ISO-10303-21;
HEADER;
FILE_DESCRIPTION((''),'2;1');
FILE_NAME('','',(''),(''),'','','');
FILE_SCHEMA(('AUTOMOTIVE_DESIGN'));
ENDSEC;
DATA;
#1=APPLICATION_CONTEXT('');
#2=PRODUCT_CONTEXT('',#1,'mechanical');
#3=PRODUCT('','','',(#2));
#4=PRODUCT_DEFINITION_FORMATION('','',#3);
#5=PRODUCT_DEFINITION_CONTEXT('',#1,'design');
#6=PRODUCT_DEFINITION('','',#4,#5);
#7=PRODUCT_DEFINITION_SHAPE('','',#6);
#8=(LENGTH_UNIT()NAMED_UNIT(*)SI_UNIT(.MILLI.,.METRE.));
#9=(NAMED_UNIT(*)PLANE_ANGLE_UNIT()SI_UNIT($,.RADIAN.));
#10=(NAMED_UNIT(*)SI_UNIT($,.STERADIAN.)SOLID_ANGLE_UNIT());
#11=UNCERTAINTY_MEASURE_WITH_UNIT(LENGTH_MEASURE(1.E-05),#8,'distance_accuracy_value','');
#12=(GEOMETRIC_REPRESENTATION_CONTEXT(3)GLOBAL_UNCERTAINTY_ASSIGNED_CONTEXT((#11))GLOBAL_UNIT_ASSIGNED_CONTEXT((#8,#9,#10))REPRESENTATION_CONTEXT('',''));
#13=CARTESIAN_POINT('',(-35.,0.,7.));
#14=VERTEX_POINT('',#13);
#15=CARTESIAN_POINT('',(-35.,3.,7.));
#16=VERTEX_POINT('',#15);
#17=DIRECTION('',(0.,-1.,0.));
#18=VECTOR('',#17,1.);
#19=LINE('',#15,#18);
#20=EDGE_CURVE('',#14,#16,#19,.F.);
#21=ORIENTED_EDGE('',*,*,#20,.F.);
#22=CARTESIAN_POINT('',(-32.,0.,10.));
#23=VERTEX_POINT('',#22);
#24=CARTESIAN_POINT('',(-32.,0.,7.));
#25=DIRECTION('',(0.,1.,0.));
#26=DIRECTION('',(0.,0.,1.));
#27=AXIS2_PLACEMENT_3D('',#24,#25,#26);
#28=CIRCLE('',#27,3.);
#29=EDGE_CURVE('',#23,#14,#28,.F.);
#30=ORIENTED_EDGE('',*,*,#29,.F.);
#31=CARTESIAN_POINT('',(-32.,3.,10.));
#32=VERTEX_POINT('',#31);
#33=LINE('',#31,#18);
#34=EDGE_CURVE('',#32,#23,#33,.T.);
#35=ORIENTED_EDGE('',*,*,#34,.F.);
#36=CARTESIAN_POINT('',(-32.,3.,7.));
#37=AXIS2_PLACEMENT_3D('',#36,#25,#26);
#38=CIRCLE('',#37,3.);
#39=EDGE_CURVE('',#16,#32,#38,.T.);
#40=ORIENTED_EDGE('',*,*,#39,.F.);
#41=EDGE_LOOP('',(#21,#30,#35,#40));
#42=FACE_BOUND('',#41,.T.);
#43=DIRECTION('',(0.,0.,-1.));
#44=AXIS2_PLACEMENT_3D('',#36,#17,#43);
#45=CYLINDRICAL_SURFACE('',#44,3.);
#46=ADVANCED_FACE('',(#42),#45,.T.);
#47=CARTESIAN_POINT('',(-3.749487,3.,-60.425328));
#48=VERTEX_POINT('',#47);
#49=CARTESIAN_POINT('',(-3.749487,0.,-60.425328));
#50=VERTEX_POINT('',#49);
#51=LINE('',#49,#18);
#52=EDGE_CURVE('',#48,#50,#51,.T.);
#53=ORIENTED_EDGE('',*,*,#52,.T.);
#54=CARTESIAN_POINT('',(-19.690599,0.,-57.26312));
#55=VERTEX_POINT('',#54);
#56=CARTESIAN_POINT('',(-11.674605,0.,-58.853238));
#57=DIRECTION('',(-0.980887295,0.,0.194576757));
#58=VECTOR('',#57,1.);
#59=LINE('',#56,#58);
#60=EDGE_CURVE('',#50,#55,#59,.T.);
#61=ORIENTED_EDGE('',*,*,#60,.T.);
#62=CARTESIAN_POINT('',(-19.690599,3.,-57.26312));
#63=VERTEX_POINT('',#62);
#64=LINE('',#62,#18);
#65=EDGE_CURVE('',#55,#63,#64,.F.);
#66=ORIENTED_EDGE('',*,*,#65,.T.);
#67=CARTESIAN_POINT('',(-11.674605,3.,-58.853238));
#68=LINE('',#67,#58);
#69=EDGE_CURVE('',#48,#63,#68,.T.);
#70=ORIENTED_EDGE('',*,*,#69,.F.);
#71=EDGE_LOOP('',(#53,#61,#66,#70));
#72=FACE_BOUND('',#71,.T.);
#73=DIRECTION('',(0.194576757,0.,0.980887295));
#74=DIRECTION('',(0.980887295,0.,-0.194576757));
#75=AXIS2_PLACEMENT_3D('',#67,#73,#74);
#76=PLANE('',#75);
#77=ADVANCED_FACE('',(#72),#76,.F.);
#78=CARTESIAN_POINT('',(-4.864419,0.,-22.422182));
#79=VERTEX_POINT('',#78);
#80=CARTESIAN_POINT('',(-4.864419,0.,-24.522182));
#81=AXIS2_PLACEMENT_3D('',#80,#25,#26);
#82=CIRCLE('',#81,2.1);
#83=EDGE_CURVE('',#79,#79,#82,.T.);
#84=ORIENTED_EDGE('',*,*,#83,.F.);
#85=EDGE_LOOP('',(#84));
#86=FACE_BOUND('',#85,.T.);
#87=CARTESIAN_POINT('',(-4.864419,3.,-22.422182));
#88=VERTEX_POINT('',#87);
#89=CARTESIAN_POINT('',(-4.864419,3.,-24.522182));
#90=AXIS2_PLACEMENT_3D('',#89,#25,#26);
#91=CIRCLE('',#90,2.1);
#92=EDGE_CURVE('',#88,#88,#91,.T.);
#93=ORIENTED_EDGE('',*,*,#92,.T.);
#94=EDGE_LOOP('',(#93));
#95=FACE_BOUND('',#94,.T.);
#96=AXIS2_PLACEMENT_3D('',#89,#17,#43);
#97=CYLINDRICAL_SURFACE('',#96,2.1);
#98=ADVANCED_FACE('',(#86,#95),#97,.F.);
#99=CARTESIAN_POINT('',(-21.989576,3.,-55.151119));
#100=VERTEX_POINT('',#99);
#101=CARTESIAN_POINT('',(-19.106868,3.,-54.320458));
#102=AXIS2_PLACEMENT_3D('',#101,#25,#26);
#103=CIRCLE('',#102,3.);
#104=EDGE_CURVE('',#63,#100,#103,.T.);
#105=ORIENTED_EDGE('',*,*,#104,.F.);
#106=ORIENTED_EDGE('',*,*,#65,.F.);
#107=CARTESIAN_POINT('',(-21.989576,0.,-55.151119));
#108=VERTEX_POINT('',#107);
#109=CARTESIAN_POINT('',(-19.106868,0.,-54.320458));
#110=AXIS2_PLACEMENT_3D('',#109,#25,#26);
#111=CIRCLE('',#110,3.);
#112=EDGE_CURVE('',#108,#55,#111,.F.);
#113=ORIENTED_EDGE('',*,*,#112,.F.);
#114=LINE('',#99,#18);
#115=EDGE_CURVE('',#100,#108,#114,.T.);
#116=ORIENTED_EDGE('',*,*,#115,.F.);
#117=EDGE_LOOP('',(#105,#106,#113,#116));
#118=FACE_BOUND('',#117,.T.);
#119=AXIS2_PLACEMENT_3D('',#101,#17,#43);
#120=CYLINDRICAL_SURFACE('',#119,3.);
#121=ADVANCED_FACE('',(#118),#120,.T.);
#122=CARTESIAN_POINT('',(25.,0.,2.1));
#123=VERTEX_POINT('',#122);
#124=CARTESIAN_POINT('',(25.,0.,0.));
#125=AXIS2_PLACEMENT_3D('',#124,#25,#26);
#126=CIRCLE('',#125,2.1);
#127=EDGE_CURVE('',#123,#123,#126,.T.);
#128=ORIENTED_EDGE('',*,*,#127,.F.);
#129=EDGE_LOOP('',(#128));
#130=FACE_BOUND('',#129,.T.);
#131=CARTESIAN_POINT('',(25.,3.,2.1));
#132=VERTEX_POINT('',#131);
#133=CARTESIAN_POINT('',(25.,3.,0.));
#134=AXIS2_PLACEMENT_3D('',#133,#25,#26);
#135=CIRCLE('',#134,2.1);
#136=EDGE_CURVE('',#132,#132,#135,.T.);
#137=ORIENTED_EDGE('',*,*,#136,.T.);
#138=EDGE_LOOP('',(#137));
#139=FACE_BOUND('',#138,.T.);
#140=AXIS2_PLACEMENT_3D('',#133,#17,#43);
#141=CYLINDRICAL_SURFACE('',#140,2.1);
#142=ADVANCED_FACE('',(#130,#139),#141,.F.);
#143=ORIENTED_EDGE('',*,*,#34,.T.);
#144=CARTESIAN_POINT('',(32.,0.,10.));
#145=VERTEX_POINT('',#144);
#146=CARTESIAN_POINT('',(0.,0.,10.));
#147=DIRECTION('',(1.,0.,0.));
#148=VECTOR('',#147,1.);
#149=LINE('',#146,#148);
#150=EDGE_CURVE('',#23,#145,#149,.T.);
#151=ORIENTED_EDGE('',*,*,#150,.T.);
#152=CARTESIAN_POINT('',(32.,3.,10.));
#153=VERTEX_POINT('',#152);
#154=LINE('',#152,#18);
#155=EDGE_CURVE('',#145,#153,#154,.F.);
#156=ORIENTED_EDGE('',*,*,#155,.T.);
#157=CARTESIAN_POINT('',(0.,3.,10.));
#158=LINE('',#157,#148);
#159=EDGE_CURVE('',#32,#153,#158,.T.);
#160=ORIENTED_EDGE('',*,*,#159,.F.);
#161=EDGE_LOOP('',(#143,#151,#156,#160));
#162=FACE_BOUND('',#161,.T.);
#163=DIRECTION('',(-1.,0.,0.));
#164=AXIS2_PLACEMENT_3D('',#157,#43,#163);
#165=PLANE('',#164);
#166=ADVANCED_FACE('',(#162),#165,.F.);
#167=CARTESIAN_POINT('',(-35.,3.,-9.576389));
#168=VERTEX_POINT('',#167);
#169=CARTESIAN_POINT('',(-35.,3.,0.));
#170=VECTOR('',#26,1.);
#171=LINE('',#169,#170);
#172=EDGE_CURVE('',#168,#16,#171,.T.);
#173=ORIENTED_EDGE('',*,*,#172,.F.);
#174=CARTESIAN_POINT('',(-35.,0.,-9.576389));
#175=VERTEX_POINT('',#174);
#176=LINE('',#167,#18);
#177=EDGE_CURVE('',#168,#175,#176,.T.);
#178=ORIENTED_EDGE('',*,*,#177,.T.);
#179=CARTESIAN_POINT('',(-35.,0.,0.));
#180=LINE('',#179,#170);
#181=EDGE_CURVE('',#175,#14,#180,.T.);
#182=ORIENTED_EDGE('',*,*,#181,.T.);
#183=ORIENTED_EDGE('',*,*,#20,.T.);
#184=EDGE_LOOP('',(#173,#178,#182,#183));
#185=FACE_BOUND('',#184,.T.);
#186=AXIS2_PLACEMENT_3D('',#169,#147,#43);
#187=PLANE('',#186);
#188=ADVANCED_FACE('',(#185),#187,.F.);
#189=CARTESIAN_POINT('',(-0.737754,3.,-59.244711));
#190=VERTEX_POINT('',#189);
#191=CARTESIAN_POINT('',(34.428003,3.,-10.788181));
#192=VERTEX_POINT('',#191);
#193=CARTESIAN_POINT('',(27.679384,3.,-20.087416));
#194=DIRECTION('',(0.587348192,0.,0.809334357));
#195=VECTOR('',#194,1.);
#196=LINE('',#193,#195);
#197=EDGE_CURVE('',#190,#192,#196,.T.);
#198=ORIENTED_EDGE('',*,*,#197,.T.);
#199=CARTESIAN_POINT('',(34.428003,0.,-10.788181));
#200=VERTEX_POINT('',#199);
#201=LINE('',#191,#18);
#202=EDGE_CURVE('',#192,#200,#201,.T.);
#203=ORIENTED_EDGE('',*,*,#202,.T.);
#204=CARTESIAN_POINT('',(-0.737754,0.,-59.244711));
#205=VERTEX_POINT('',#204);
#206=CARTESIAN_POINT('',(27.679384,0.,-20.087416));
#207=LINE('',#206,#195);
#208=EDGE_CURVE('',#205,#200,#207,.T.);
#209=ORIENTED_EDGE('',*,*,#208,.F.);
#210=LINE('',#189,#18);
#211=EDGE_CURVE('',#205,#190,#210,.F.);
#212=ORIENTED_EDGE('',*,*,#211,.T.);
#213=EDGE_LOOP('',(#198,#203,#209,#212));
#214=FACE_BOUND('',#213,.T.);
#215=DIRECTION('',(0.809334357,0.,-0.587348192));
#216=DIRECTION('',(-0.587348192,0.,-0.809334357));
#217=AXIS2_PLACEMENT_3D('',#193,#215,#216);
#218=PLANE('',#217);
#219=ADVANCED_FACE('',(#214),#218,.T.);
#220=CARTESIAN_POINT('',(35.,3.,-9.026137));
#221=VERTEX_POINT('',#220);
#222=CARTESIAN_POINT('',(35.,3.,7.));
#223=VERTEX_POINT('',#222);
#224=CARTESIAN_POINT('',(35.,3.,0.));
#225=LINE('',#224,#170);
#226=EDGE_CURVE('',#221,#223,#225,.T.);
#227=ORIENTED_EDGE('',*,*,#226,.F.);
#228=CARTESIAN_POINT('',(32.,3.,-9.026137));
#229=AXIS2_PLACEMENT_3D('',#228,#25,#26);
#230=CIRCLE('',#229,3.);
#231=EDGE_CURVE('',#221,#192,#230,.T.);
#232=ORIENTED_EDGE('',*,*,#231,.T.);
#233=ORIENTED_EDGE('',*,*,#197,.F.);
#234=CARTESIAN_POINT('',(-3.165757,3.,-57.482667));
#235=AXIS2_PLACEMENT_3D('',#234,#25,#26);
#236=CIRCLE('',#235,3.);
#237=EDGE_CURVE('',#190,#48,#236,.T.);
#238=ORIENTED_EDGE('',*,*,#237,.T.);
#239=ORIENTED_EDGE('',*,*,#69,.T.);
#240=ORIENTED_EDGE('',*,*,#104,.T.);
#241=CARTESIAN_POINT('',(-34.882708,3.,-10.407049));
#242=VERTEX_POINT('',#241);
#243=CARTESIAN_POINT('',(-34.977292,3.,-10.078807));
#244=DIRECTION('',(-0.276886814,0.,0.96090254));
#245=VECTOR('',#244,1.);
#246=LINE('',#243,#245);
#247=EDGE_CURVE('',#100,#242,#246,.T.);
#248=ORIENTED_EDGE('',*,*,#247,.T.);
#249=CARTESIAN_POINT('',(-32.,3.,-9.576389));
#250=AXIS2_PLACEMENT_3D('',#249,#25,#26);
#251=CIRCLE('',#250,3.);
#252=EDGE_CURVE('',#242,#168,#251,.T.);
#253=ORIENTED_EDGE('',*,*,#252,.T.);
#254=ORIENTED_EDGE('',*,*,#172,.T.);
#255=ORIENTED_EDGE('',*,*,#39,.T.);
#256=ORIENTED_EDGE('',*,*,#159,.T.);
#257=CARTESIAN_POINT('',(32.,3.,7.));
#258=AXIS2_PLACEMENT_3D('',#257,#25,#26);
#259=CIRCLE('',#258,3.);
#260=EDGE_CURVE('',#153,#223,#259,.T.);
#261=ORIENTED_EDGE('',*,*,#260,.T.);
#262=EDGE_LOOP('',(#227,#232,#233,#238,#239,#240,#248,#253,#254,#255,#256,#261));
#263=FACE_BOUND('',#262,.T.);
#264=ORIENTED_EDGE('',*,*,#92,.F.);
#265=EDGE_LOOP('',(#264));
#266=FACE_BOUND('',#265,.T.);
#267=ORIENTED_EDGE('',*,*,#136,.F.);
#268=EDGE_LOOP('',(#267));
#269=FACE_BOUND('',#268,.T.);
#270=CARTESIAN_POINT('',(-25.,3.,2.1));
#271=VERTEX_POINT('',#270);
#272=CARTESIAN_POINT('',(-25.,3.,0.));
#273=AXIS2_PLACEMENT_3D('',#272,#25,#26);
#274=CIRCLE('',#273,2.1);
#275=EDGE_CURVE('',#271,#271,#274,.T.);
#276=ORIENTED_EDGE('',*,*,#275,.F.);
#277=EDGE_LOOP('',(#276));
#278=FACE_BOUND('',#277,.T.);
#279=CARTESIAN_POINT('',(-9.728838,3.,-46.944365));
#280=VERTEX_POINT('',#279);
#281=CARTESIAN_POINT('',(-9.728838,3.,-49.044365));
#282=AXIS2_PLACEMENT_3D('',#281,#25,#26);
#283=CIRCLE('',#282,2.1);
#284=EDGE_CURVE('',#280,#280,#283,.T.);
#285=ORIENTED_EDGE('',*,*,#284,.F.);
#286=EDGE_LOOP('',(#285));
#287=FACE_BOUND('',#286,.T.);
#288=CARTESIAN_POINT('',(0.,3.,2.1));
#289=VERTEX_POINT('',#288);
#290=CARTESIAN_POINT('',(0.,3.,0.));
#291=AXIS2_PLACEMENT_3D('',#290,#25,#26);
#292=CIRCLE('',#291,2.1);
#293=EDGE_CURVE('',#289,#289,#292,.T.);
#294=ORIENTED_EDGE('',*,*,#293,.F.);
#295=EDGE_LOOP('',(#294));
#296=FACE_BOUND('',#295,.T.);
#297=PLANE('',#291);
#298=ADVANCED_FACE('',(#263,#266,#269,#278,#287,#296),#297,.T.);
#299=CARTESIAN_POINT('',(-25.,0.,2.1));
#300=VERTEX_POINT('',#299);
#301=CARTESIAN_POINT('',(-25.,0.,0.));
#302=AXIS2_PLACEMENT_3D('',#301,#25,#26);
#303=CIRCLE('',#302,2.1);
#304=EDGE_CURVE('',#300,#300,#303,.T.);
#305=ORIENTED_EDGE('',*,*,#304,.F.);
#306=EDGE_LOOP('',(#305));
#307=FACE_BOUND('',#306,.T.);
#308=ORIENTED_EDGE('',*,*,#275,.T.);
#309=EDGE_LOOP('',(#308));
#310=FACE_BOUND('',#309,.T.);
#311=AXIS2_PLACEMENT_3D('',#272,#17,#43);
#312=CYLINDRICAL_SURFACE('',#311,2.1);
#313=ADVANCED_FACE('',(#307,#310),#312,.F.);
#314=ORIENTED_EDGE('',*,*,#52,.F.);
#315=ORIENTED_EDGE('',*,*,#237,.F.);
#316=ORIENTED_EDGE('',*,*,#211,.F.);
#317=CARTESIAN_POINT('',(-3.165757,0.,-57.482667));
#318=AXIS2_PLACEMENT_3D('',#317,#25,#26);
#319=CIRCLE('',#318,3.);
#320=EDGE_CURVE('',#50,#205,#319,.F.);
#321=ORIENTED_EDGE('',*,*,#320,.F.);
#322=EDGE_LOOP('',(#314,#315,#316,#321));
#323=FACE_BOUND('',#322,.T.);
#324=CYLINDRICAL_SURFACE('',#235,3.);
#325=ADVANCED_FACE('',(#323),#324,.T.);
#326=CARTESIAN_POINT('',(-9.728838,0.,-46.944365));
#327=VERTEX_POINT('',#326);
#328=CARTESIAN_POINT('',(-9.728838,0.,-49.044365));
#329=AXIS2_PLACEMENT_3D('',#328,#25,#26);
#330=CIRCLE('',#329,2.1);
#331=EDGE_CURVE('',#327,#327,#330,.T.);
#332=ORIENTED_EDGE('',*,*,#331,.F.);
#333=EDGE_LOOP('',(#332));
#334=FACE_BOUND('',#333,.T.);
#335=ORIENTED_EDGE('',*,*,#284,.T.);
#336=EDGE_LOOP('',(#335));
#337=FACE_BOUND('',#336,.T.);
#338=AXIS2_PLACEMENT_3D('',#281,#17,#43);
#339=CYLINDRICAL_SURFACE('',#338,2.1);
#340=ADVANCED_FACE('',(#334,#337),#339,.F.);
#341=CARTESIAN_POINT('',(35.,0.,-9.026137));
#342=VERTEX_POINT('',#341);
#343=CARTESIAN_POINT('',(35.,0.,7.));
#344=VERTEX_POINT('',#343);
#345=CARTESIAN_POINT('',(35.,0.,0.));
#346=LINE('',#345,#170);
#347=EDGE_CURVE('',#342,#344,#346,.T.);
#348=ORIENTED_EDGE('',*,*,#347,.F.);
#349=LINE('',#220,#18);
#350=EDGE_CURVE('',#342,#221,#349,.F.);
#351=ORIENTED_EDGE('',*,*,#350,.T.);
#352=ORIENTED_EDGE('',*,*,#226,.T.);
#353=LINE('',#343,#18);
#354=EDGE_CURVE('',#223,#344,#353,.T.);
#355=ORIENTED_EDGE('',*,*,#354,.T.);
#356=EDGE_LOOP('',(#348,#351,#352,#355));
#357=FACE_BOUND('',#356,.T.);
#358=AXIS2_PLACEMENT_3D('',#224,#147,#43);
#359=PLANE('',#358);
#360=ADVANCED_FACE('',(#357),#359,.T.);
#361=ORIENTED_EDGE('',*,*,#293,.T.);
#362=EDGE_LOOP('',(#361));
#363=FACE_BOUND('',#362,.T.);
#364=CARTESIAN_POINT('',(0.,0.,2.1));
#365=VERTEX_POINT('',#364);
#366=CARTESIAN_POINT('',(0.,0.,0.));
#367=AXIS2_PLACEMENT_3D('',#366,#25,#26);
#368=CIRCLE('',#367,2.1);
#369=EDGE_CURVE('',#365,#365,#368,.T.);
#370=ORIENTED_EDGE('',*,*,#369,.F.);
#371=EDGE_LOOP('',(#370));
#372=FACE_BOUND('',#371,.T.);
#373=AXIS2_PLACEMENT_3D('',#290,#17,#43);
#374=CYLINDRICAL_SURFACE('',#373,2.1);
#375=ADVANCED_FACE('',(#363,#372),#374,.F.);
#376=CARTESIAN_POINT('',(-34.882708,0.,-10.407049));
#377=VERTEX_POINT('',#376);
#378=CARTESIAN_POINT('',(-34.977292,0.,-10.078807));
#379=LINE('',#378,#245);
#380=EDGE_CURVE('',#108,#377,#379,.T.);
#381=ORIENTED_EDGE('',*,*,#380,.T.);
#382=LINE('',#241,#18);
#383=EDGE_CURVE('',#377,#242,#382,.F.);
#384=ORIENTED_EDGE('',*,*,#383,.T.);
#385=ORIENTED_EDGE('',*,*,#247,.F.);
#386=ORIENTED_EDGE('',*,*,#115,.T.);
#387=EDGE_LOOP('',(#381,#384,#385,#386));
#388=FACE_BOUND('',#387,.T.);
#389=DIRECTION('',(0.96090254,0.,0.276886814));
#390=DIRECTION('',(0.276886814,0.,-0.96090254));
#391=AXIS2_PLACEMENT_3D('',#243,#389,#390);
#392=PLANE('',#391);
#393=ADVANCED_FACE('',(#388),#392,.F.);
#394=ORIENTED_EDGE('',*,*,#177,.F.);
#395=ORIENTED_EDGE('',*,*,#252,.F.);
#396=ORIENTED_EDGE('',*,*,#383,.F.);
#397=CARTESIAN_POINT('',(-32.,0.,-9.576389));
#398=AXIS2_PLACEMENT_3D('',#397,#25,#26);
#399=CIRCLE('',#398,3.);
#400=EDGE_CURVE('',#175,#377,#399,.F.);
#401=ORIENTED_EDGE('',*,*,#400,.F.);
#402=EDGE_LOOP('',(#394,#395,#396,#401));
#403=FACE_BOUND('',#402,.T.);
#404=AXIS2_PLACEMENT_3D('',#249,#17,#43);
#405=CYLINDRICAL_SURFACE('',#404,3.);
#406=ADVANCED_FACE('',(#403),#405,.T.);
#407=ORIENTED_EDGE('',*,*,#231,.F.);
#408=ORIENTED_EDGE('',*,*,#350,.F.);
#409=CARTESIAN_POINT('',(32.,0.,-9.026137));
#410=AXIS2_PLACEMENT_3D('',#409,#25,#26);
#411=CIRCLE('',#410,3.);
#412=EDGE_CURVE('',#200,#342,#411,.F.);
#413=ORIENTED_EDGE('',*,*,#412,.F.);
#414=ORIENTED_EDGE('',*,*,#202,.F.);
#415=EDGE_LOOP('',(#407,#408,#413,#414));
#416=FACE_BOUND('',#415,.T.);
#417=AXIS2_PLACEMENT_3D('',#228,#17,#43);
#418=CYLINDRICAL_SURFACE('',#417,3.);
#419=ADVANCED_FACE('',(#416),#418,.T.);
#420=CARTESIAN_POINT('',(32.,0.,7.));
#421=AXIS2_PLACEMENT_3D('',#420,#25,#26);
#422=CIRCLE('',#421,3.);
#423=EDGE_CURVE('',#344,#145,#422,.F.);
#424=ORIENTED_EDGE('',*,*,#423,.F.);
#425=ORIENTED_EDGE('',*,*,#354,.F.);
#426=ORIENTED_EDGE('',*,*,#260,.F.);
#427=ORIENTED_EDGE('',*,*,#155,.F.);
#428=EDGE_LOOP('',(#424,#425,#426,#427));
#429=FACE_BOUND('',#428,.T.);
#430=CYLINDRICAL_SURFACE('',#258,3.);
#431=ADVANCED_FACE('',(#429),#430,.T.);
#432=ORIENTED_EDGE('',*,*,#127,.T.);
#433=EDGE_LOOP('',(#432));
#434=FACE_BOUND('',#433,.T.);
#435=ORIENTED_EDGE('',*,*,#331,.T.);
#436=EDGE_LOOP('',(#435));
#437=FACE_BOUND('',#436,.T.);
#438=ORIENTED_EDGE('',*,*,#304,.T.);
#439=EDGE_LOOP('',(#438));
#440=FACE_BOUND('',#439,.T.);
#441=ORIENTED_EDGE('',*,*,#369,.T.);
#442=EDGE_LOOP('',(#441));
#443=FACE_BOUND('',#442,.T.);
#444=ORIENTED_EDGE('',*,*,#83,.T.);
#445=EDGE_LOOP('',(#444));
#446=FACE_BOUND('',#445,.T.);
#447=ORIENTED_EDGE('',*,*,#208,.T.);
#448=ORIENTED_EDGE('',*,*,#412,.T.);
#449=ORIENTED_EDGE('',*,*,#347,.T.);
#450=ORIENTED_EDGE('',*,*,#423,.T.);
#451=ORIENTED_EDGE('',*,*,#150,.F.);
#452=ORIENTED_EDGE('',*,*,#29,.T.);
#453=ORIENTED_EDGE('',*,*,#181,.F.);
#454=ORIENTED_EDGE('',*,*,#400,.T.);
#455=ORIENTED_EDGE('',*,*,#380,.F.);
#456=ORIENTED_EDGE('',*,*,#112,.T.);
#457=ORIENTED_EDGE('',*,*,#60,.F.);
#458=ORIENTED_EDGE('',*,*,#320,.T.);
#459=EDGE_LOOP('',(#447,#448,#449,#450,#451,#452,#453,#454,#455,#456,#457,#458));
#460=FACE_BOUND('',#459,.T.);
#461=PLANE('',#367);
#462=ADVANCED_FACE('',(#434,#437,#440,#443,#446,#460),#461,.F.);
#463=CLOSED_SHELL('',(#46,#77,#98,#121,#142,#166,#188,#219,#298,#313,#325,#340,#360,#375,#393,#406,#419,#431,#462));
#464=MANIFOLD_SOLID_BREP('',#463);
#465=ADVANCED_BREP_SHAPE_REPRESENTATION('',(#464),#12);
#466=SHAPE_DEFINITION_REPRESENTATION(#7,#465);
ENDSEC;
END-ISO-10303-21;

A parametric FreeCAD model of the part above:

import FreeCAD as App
import Part
import Sketcher
Q = App.Units.Quantity


def edges_at(feature, points):
    """Names of the edges that pass closest to the given points."""
    edges = feature.Shape.Edges
    near = lambda p: min(range(len(edges)), key=lambda i: edges[i].distToShape(Part.Vertex(*p))[0])
    return sorted({f"Edge{near(p) + 1}" for p in points})

doc = App.newDocument("Part")
body = doc.addObject("PartDesign::Body", "Body")

# Sketch on XZ plane
sketch1 = body.newObject("Sketcher::SketchObject", "Sketch")
sketch1.AttachmentSupport = (doc.getObject("XZ_Plane"), [""])
sketch1.MapMode = "FlatFace"
sketch1.addGeometry([
    Part.LineSegment(App.Vector(35, -10, 0), App.Vector(-1.9, -60.8, 0)),  # 0
    Part.LineSegment(App.Vector(-1.9, -60.8, 0), App.Vector(-21.5, -56.9, 0)),  # 1
    Part.LineSegment(App.Vector(-21.5, -56.9, 0), App.Vector(-35, -10, 0)),  # 2
    Part.LineSegment(App.Vector(-35, -10, 0), App.Vector(-35, 10, 0)),  # 3
    Part.LineSegment(App.Vector(-35, 10, 0), App.Vector(35, 10, 0)),  # 4
    Part.LineSegment(App.Vector(35, 10, 0), App.Vector(35, -10, 0)),  # 5
    Part.Circle(App.Vector(-9.7, -49, 0), App.Vector(0, 0, 1), 2.1),  # 6
    Part.Circle(App.Vector(-4.9, -24.5, 0), App.Vector(0, 0, 1), 2.1),  # 7
    Part.Circle(App.Vector(0, 0, 0), App.Vector(0, 0, 1), 2.1),  # 8
    Part.Circle(App.Vector(25, 0, 0), App.Vector(0, 0, 1), 2.1),  # 9
    Part.Circle(App.Vector(-25, 0, 0), App.Vector(0, 0, 1), 2.1),  # 10
], False)
sketch1.addConstraint([
    Sketcher.Constraint("Coincident", 0, 2, 1, 1),
    Sketcher.Constraint("Coincident", 1, 2, 2, 1),
    Sketcher.Constraint("Coincident", 2, 2, 3, 1),
    Sketcher.Constraint("Coincident", 3, 2, 4, 1),
    Sketcher.Constraint("Coincident", 4, 2, 5, 1),
    Sketcher.Constraint("Coincident", 5, 2, 0, 1),
    Sketcher.Constraint("Vertical", 3),
    Sketcher.Constraint("Horizontal", 4),
    Sketcher.Constraint("Vertical", 5),
    Sketcher.Constraint("Coincident", 8, 3, -1, 1),
    Sketcher.Constraint("Equal", 6, 7),
    Sketcher.Constraint("Equal", 7, 8),
    Sketcher.Constraint("Equal", 8, 9),
    Sketcher.Constraint("Equal", 9, 10),
    Sketcher.Constraint("Symmetric", 9, 3, 10, 3, -1, 1),
    Sketcher.Constraint("Symmetric", 2, 2, 4, 2, -1, 1),
    Sketcher.Constraint("PointOnObject", 9, 3, -1),
    Sketcher.Constraint("Horizontal", 2, 2, 5, 2),
    Sketcher.Constraint("Diameter", 6, 4.2),
    Sketcher.Constraint("DistanceX", 4, 1, 4, 2, 70.0),
    Sketcher.Constraint("DistanceY", 3, 1, 3, 2, 20.0),
    Sketcher.Constraint("Distance", 1, 20.0),
    Sketcher.Constraint("DistanceX", -1, 1, 9, 3, 25.0),
    Sketcher.Constraint("Angle", 1, Q("168.78 deg")),
    Sketcher.Constraint("Distance", 0, 62.766402),
    Sketcher.Constraint("DistanceX", 7, 3, -1, 1, 4.864419),
    Sketcher.Constraint("DistanceX", 1, 2, -1, 1, 21.483478),
    Sketcher.Constraint("DistanceX", 6, 3, 7, 3, 4.864419),
    Sketcher.Constraint("DistanceY", 0, 2, 6, 3, 11.754641),
    Sketcher.Constraint("DistanceY", 7, 3, -1, 1, 24.522182),
])
pad1 = body.newObject("PartDesign::Pad", "Pad")
pad1.Profile = sketch1
pad1.Length = 3
pad1.Reversed = True
doc.recompute()

fillet = body.newObject("PartDesign::Fillet", "Fillet")
fillet.Base = (pad1, edges_at(pad1, [
    (-1.866, 1.5, -60.799),
    (35, 1.5, -10),
    (35, 1.5, 10),
    (-35, 1.5, 10),
    (-35, 1.5, -10),
    (-21.483, 1.5, -56.907),
]))
fillet.Radius = 3

doc.recompute()
